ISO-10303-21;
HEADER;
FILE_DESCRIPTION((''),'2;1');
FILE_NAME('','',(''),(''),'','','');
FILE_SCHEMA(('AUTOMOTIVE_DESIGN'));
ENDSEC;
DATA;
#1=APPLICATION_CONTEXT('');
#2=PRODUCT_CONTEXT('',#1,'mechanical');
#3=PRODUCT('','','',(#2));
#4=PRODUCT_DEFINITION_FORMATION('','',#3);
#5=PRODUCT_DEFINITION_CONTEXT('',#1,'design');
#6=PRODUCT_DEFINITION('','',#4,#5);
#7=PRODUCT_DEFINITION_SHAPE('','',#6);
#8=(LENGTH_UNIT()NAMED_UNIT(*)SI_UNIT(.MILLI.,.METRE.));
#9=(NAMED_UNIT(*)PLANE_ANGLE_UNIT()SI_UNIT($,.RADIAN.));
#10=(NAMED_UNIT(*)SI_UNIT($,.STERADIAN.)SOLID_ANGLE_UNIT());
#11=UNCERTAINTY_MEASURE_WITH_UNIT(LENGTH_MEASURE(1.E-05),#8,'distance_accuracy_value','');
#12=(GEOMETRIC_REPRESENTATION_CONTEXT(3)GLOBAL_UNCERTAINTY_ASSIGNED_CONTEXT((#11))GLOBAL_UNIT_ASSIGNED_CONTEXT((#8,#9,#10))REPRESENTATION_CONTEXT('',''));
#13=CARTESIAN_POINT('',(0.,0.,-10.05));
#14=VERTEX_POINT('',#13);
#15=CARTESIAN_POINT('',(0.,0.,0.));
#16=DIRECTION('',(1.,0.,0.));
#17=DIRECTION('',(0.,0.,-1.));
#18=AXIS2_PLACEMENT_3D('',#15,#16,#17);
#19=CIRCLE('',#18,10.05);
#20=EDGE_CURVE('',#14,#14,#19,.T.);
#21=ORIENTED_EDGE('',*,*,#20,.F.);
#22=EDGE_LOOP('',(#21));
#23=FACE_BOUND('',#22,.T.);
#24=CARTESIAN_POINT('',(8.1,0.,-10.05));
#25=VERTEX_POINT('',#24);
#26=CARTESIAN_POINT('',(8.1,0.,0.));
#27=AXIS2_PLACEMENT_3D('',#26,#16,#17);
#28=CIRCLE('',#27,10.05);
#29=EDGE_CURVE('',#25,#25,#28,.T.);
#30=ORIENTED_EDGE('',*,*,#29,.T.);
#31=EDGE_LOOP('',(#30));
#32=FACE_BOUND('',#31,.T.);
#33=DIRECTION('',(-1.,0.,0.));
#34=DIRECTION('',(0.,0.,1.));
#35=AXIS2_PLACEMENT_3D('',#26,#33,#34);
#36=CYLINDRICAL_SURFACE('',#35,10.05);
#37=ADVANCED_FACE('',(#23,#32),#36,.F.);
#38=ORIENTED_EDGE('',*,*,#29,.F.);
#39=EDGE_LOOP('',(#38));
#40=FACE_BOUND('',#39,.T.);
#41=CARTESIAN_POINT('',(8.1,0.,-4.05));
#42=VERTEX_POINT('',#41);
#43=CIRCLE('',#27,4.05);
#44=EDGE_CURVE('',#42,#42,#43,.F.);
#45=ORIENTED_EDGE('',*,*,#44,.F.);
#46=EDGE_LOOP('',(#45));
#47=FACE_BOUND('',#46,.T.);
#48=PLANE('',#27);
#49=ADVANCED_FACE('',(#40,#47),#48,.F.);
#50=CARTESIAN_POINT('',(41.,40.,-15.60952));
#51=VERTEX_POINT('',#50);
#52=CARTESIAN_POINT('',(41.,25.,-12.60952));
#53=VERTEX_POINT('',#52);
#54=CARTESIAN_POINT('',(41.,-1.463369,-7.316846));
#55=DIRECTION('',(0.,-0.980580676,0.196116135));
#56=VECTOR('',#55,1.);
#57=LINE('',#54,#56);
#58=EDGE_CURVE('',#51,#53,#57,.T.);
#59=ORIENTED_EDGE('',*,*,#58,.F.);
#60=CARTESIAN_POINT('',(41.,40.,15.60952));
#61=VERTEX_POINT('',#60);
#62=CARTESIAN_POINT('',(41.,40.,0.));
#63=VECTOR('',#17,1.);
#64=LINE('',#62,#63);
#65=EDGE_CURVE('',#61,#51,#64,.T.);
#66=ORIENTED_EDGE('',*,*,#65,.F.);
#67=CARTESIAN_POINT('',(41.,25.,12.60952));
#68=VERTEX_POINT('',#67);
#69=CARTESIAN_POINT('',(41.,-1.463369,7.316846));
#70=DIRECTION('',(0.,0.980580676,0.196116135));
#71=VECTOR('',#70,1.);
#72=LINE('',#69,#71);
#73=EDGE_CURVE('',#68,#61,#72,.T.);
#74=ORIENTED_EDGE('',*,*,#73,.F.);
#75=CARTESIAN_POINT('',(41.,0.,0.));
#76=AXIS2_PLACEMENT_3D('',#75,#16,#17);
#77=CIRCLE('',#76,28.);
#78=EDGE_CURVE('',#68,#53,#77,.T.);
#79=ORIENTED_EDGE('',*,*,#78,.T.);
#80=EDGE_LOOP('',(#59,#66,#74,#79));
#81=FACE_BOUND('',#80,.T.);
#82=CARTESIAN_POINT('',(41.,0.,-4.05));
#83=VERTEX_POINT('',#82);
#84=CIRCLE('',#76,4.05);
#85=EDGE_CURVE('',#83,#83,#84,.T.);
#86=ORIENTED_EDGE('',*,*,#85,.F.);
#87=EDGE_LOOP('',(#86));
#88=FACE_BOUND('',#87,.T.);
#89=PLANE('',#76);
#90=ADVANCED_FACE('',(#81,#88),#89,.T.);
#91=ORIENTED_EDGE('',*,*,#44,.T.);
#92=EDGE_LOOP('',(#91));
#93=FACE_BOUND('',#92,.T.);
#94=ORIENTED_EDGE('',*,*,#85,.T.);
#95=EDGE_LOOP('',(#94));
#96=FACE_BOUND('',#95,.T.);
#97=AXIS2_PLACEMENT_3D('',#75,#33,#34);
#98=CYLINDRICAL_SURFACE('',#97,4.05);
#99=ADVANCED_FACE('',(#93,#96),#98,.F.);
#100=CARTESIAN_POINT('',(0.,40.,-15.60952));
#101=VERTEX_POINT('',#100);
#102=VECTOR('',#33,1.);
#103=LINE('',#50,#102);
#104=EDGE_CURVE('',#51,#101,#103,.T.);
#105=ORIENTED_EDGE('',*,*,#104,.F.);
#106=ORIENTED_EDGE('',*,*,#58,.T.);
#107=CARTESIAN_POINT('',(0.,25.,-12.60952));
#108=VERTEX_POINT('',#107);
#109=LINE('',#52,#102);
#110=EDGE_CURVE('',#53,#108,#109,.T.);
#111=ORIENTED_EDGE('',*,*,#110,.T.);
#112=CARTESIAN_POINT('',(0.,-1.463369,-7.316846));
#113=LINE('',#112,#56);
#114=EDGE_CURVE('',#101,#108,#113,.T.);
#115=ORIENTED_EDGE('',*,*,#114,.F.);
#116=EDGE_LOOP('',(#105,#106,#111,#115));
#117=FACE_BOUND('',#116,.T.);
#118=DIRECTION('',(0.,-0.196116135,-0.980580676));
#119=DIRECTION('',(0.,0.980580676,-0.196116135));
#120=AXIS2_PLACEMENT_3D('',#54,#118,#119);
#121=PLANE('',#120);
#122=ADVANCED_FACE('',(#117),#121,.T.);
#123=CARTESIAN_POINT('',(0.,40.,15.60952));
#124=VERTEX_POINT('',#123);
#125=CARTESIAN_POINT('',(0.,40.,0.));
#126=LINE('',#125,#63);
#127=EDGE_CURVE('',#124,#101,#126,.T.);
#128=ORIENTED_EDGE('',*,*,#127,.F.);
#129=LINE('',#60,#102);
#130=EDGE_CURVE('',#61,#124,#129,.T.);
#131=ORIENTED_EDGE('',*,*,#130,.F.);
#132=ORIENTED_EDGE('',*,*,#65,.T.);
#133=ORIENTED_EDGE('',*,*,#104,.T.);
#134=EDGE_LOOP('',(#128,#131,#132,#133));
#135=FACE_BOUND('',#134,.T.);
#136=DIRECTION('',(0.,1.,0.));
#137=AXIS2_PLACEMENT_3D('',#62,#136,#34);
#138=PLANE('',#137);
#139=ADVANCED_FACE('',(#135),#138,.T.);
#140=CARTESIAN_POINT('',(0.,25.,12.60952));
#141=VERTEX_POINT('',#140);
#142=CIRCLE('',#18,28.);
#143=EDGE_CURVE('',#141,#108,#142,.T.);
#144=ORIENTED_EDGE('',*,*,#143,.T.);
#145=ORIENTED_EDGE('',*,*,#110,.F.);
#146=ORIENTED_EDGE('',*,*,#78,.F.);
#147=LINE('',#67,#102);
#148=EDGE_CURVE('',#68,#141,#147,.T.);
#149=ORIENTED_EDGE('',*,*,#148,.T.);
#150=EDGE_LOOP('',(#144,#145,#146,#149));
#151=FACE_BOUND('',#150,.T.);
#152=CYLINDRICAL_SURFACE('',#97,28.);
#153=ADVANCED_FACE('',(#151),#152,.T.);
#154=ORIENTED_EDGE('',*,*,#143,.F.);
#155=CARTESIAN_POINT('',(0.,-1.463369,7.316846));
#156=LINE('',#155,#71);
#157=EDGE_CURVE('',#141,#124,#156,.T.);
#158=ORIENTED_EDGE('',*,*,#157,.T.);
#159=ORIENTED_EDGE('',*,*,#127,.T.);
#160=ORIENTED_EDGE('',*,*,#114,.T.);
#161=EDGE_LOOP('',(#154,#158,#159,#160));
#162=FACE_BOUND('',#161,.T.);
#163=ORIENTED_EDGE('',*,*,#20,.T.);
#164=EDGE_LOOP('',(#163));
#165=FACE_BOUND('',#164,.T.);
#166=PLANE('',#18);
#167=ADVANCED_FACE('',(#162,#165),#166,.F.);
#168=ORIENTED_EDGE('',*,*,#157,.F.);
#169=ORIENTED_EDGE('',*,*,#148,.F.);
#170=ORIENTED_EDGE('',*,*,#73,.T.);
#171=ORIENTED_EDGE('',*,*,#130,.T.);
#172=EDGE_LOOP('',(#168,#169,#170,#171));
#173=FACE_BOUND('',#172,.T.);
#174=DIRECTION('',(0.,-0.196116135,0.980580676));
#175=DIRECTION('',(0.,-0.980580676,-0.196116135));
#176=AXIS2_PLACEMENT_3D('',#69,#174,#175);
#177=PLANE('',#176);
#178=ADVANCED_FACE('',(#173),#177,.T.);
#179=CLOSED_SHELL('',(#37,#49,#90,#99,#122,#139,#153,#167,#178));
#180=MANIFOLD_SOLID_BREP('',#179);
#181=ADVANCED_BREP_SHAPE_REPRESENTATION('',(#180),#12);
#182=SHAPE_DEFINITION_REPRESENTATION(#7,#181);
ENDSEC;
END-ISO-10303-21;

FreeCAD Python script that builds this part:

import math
import FreeCAD as App
import Part
import Sketcher
from FreeCAD import Vector

doc = App.newDocument("Part")
body = doc.addObject("PartDesign::Body", "Body")

sketch1 = doc.addObject("Sketcher::SketchObject", "Sketch")
body.addObject(sketch1)
sketch1.AttachmentSupport = (doc.YZ_Plane, [""])
sketch1.MapMode = "FlatFace"
sketch1.addGeometry(Part.LineSegment(Vector(25, -13, 0), Vector(40, -16, 0)), False)
sketch1.addGeometry(Part.LineSegment(Vector(40, -16, 0), Vector(40, 16, 0)), False)
sketch1.addGeometry(Part.LineSegment(Vector(40, 16, 0), Vector(25, 13, 0)), False)
sketch1.addGeometry(Part.ArcOfCircle(Part.Circle(Vector(0, 0, 0), Vector(0, 0, 1), 28), math.radians(27), math.radians(333)), False)
sketch1.addConstraint(Sketcher.Constraint("Coincident", 0, 2, 1, 1))
sketch1.addConstraint(Sketcher.Constraint("Coincident", 1, 2, 2, 1))
sketch1.addConstraint(Sketcher.Constraint("Coincident", 2, 2, 3, 1))
sketch1.addConstraint(Sketcher.Constraint("Coincident", 3, 2, 0, 1))
sketch1.addConstraint(Sketcher.Constraint("Vertical", 1))
sketch1.addConstraint(Sketcher.Constraint("Coincident", 3, 3, -1, 1))
sketch1.addConstraint(Sketcher.Constraint("Vertical", 2, 2, 3, 2))
sketch1.addConstraint(Sketcher.Constraint("Equal", 0, 2))
sketch1.addConstraint(Sketcher.Constraint("Radius", 3, 28.0))
sketch1.addConstraint(Sketcher.Constraint("DistanceX", -1, 1, 0, 2, 40.0))
sketch1.addConstraint(Sketcher.Constraint("DistanceX", -1, 1, 2, 2, 25.0))
sketch1.addConstraint(Sketcher.Constraint("DistanceY", 2, 2, 1, 2, 3.0))
pad1 = doc.addObject("PartDesign::Pad", "Pad")
body.addObject(pad1)
pad1.Profile = sketch1
pad1.Length = 41

sketch2 = doc.addObject("Sketcher::SketchObject", "Sketch001")
body.addObject(sketch2)
sketch2.AttachmentSupport = (doc.YZ_Plane, [""])
sketch2.MapMode = "FlatFace"
sketch2.addGeometry(Part.Circle(Vector(0, 0, 0), Vector(0, 0, 1), 10), False)
sketch2.addConstraint(Sketcher.Constraint("Coincident", 0, 3, -1, 1))
sketch2.addConstraint(Sketcher.Constraint("Diameter", 0, 20.1))
pocket1 = doc.addObject("PartDesign::Pocket", "Pocket")
body.addObject(pocket1)
pocket1.Profile = sketch2
pocket1.Length = 8.1
pocket1.Reversed = True

sketch3 = doc.addObject("Sketcher::SketchObject", "Sketch002")
body.addObject(sketch3)
sketch3.AttachmentSupport = (doc.YZ_Plane, [""])
sketch3.MapMode = "FlatFace"
sketch3.addGeometry(Part.Circle(Vector(0, 0, 0), Vector(0, 0, 1), 4), False)
sketch3.addConstraint(Sketcher.Constraint("Coincident", 0, 3, -1, 1))
sketch3.addConstraint(Sketcher.Constraint("Diameter", 0, 8.1))
pocket2 = doc.addObject("PartDesign::Pocket", "Pocket001")
body.addObject(pocket2)
pocket2.Profile = sketch3
pocket2.Type = "ThroughAll"
pocket2.Reversed = True

doc.recompute()
